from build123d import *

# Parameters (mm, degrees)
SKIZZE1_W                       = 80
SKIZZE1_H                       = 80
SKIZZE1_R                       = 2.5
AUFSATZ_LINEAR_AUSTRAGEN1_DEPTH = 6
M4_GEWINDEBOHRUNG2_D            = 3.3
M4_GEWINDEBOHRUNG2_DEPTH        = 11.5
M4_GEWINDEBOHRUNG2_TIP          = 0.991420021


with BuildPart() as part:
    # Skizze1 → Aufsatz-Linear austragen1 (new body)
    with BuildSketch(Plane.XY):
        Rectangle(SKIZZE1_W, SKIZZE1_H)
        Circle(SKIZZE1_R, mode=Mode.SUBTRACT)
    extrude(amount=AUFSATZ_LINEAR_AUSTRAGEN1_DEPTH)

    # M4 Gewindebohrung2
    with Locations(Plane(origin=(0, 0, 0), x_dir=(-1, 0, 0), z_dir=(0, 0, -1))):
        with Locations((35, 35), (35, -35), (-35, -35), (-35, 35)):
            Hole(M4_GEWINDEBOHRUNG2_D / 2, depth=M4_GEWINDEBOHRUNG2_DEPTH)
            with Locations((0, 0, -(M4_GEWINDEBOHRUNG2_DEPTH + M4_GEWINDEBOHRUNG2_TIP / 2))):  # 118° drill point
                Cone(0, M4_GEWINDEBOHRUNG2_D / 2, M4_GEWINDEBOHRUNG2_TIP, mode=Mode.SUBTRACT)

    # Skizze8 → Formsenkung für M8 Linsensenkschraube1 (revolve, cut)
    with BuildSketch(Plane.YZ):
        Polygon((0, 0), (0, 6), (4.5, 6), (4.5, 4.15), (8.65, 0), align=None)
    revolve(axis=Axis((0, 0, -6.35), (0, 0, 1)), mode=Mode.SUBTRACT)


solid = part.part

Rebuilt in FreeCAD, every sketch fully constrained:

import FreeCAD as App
import Part
import Sketcher

V = App.Vector
Q = App.Units.Quantity

doc = App.newDocument("Part")
body = doc.addObject("PartDesign::Body", "Body")

sketch1 = body.newObject("Sketcher::SketchObject", "Sketch")
sketch1.AttachmentSupport = (doc.getObject("XY_Plane"), [""])
sketch1.MapMode = "FlatFace"
sketch1.addGeometry(Part.LineSegment(V(-40, 40, 0), V(-40, -40, 0)), False)
sketch1.addGeometry(Part.LineSegment(V(-40, -40, 0), V(40, -40, 0)), False)
sketch1.addGeometry(Part.LineSegment(V(40, -40, 0), V(40, 40, 0)), False)
sketch1.addGeometry(Part.LineSegment(V(40, 40, 0), V(-40, 40, 0)), False)
sketch1.addGeometry(Part.Circle(V(0, 0, 0), V(0, 0, 1), 2.5), False)
sketch1.addConstraint(Sketcher.Constraint("Coincident", 0, 2, 1, 1))
sketch1.addConstraint(Sketcher.Constraint("Coincident", 1, 2, 2, 1))
sketch1.addConstraint(Sketcher.Constraint("Coincident", 2, 2, 3, 1))
sketch1.addConstraint(Sketcher.Constraint("Coincident", 3, 2, 0, 1))
sketch1.addConstraint(Sketcher.Constraint("Vertical", 0))
sketch1.addConstraint(Sketcher.Constraint("Horizontal", 1))
sketch1.addConstraint(Sketcher.Constraint("Vertical", 2))
sketch1.addConstraint(Sketcher.Constraint("Horizontal", 3))
sketch1.addConstraint(Sketcher.Constraint("Coincident", 4, 3, -1, 1))
sketch1.addConstraint(Sketcher.Constraint("Symmetric", 0, 2, 2, 2, -1, 1))
sketch1.addConstraint(Sketcher.Constraint("Equal", 3, 0))
sketch1.addConstraint(Sketcher.Constraint("Diameter", 4, 5.0))
sketch1.addConstraint(Sketcher.Constraint("DistanceX", 1, 1, 1, 2, 80.0))
pad1 = body.newObject("PartDesign::Pad", "Pad")
pad1.Profile = sketch1
pad1.Length = 6

sketch2 = body.newObject("Sketcher::SketchObject", "Sketch001")
sketch2.AttachmentSupport = (doc.getObject("XY_Plane"), [""])
sketch2.MapMode = "FlatFace"
sketch2.addGeometry(Part.Circle(V(-35, 35, 0), V(0, 0, 1), 1.6), False)
sketch2.addGeometry(Part.Circle(V(-35, -35, 0), V(0, 0, 1), 1.6), False)
sketch2.addGeometry(Part.Circle(V(35, -35, 0), V(0, 0, 1), 1.6), False)
sketch2.addGeometry(Part.Circle(V(35, 35, 0), V(0, 0, 1), 1.6), False)
sketch2.addConstraint(Sketcher.Constraint("Equal", 0, 1))
sketch2.addConstraint(Sketcher.Constraint("Equal", 1, 2))
sketch2.addConstraint(Sketcher.Constraint("Equal", 2, 3))
sketch2.addConstraint(Sketcher.Constraint("Symmetric", 0, 3, 2, 3, -1, 1))
sketch2.addConstraint(Sketcher.Constraint("Symmetric", 1, 3, 3, 3, -1, 1))
sketch2.addConstraint(Sketcher.Constraint("Symmetric", 1, 3, 2, 3, -2))
sketch2.addConstraint(Sketcher.Constraint("Diameter", 0, 3.3))
sketch2.addConstraint(Sketcher.Constraint("DistanceX", 0, 3, -1, 1, 35.0))
sketch2.addConstraint(Sketcher.Constraint("DistanceY", -1, 1, 0, 3, 35.0))
doc.recompute()
hole = body.newObject("PartDesign::Hole", "Hole")
hole.Profile = sketch2
hole.ThreadType = "None"
hole.Diameter = 3.3
hole.DepthType = "Dimension"
hole.Depth = 11.5
hole.DrillPoint = "Angled"
hole.DrillPointAngle = 118
hole.Reversed = True

sketch3 = body.newObject("Sketcher::SketchObject", "Sketch002")
sketch3.AttachmentSupport = (doc.getObject("YZ_Plane"), [""])
sketch3.MapMode = "FlatFace"
sketch3.addGeometry(Part.LineSegment(V(0, 6, 0), V(0, 0, 0)), False)
sketch3.addGeometry(Part.LineSegment(V(0, 0, 0), V(8.7, 0, 0)), False)
sketch3.addGeometry(Part.LineSegment(V(8.7, 0, 0), V(4.5, 4.2, 0)), False)
sketch3.addGeometry(Part.LineSegment(V(4.5, 4.2, 0), V(4.5, 6, 0)), False)
sketch3.addGeometry(Part.LineSegment(V(4.5, 6, 0), V(0, 6, 0)), False)
sketch3.addConstraint(Sketcher.Constraint("Coincident", 0, 2, 1, 1))
sketch3.addConstraint(Sketcher.Constraint("Coincident", 1, 2, 2, 1))
sketch3.addConstraint(Sketcher.Constraint("Coincident", 2, 2, 3, 1))
sketch3.addConstraint(Sketcher.Constraint("Coincident", 3, 2, 4, 1))
sketch3.addConstraint(Sketcher.Constraint("Coincident", 4, 2, 0, 1))
sketch3.addConstraint(Sketcher.Constraint("Vertical", 0))
sketch3.addConstraint(Sketcher.Constraint("Horizontal", 1))
sketch3.addConstraint(Sketcher.Constraint("Vertical", 3))
sketch3.addConstraint(Sketcher.Constraint("Horizontal", 4))
sketch3.addConstraint(Sketcher.Constraint("Coincident", 0, 2, -1, 1))
sketch3.addConstraint(Sketcher.Constraint("DistanceY", 0, 2, 0, 1, 6.0))
sketch3.addConstraint(Sketcher.Constraint("Angle", 2, Q("135 deg")))
sketch3.addConstraint(Sketcher.Constraint("DistanceX", 4, 2, 4, 1, 4.5))
sketch3.addConstraint(Sketcher.Constraint("DistanceX", 1, 1, 1, 2, 8.65))
groove = body.newObject("PartDesign::Groove", "Groove")
groove.Profile = sketch3
groove.ReferenceAxis = (sketch3, ["V_Axis"])
groove.Angle = 360

doc.recompute()
